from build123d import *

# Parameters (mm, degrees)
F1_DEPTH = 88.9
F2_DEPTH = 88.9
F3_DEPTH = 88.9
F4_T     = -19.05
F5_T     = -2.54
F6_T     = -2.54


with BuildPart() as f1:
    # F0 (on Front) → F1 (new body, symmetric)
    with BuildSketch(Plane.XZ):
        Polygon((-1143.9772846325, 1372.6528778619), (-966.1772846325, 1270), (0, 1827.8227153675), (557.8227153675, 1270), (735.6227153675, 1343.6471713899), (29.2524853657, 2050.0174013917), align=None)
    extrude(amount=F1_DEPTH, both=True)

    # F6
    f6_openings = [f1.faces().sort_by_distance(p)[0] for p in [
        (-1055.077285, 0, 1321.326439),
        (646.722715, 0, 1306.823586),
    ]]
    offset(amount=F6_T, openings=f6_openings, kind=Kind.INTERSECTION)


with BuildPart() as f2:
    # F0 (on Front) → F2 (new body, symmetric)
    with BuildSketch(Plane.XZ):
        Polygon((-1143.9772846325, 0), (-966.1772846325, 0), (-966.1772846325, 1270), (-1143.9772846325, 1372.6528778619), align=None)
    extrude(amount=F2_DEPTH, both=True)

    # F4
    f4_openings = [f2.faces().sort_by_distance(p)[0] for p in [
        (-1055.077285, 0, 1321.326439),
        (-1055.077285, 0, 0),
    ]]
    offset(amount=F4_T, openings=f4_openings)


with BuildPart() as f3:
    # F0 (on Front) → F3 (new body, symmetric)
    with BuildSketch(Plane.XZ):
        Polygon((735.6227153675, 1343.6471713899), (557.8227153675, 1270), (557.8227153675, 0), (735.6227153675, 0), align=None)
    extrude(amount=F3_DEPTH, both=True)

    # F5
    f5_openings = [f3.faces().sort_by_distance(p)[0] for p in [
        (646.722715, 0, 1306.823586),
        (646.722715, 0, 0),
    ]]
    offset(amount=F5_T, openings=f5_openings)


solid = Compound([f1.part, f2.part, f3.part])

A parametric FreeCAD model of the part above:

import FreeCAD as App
import Part
import Sketcher
from FreeCAD import Vector
Q = App.Units.Quantity


def faces_at(feature, points):
    """Names of the faces that lie closest to the given points."""
    faces = feature.Shape.Faces
    near = lambda p: min(range(len(faces)), key=lambda i: faces[i].distToShape(Part.Vertex(*p))[0])
    return sorted({f"Face{near(p) + 1}" for p in points})


def add_polygon(sketch, points):
    """Adds a closed chain of lines whose ends are joined by coincident constraints."""
    first, n = sketch.GeometryCount, len(points)
    for a, b in zip(points, points[1:] + points[:1]):
        sketch.addGeometry(Part.LineSegment(App.Vector(*a, 0), App.Vector(*b, 0)), False)
    for i in range(n):
        sketch.addConstraint(Sketcher.Constraint("Coincident", first + i, 2, first + (i + 1) % n, 1))

doc = App.newDocument("Part")
params = doc.addObject("Spreadsheet::Sheet", "Params")
for row, (alias, value) in enumerate([
    ("pad1_length", "7 in"),
    ("thickness_wall", "0.1 in"),
    ("sketch2_width", "7 in"),
    ("sketch2_height", "50 in"),
    ("pad2_length", "7 in"),
    ("thickness2_wall", "0.75 in"),
    ("sketch3_width", "7 in"),
    ("sketch3_height", "50 in"),
    ("pad3_length", "7 in"),
    ("thickness3_wall", "0.1 in"),
], start=1):
    params.set(f"A{row}", alias)
    params.set(f"B{row}", "=" + value)
    params.setAlias(f"B{row}", alias)

body = doc.addObject("PartDesign::Body", "Body")

# Sketch on XZ plane
sketch1 = body.newObject("Sketcher::SketchObject", "Sketch")
sketch1.AttachmentSupport = (doc.getObject("XZ_Plane"), [""])
sketch1.MapMode = "FlatFace"
add_polygon(sketch1, [(-1144, 1373), (-966, 1270), (0, 1828), (558, 1270), (736, 1344), (29, 2050)])  # lines 0-5
sketch1.addConstraint(Sketcher.Constraint("PointOnObject", 1, 2, -2))
sketch1.addConstraint(Sketcher.Constraint("Parallel", 2, 4))
sketch1.addConstraint(Sketcher.Constraint("Parallel", 1, 5))
sketch1.addConstraint(Sketcher.Constraint("Horizontal", 0, 2, 2, 2))
sketch1.addConstraint(Sketcher.Constraint("DistanceY", -1, 1, 0, 2, Q("50 in")))
sketch1.addConstraint(Sketcher.Constraint("Angle", 0, Q("-30 deg")))
sketch1.addConstraint(Sketcher.Constraint("Angle", 1, Q("30 deg")))
sketch1.addConstraint(Sketcher.Constraint("Angle", 2, Q("-45 deg")))
sketch1.addConstraint(Sketcher.Constraint("DistanceX", 0, 2, 2, 2, Q("60 in")))
sketch1.addConstraint(Sketcher.Constraint("DistanceX", 2, 2, 3, 2, Q("7 in")))
sketch1.addConstraint(Sketcher.Constraint("DistanceX", 5, 2, 0, 2, Q("7 in")))
sketch1.addConstraint(Sketcher.Constraint("Angle", 3, Q("22.5 deg")))
pad1 = body.newObject("PartDesign::Pad", "Pad")
pad1.Profile = sketch1
pad1.setExpression("Length", "Params.pad1_length")
pad1.Midplane = True
doc.recompute()

thickness = body.newObject("PartDesign::Thickness", "Thickness")
thickness.Base = (pad1, faces_at(pad1, [(-1055.077, 0, 1321.326), (646.723, 0, 1306.824)]))
thickness.setExpression("Value", "Params.thickness_wall")
thickness.Reversed = True
thickness.Join = "Intersection"
body2 = doc.addObject("PartDesign::Body", "Body001")

# Sketch on XZ plane
sketch2 = body2.newObject("Sketcher::SketchObject", "Sketch001")
sketch2.AttachmentSupport = (doc.getObject("XZ_Plane001"), [""])
sketch2.MapMode = "FlatFace"
add_polygon(sketch2, [(-1144, 0), (-966, 0), (-966, 1270), (-1144, 1373)])  # lines 0-3
sketch2.addConstraint(Sketcher.Constraint("Horizontal", 0))
sketch2.addConstraint(Sketcher.Constraint("Vertical", 1))
sketch2.addConstraint(Sketcher.Constraint("Vertical", 3))
sketch2.addConstraint(Sketcher.Constraint("PointOnObject", 0, 2, -1))
sketch2.addConstraint(Sketcher.Constraint("DistanceX", 0, 1, 0, 2, Q("7 in")))
sketch2.addConstraint(Sketcher.Constraint("DistanceY", 1, 1, 1, 2, Q("50 in")))
sketch2.addConstraint(Sketcher.Constraint("Angle", 2, Q("150 deg")))
sketch2.addConstraint(Sketcher.Constraint("DistanceX", 0, 2, -1, 1, 966.177285))
sketch2.setExpression("Constraints[8]", "Params.sketch2_width")
sketch2.setExpression("Constraints[9]", "Params.sketch2_height")
pad2 = body2.newObject("PartDesign::Pad", "Pad001")
pad2.Profile = sketch2
pad2.setExpression("Length", "Params.pad2_length")
pad2.Midplane = True
doc.recompute()

thickness2 = body2.newObject("PartDesign::Thickness", "Thickness001")
thickness2.Base = (pad2, faces_at(pad2, [(-1055.077, 0, 1321.326), (-1055.077, 0, 0)]))
thickness2.setExpression("Value", "Params.thickness2_wall")
thickness2.Reversed = True
thickness2.Join = "Arc"
body3 = doc.addObject("PartDesign::Body", "Body002")

# Sketch on XZ plane
sketch3 = body3.newObject("Sketcher::SketchObject", "Sketch002")
sketch3.AttachmentSupport = (doc.getObject("XZ_Plane002"), [""])
sketch3.MapMode = "FlatFace"
add_polygon(sketch3, [(736, 1344), (558, 1270), (558, 0), (736, 0)])  # lines 0-3
sketch3.addConstraint(Sketcher.Constraint("Vertical", 1))
sketch3.addConstraint(Sketcher.Constraint("Horizontal", 2))
sketch3.addConstraint(Sketcher.Constraint("Vertical", 3))
sketch3.addConstraint(Sketcher.Constraint("PointOnObject", 1, 2, -1))
sketch3.addConstraint(Sketcher.Constraint("DistanceX", 2, 1, 2, 2, Q("7 in")))
sketch3.addConstraint(Sketcher.Constraint("DistanceY", 1, 2, 1, 1, Q("50 in")))
sketch3.addConstraint(Sketcher.Constraint("Angle", 0, Q("-157.5 deg")))
sketch3.addConstraint(Sketcher.Constraint("DistanceX", -1, 1, 0, 2, 557.822715))
sketch3.setExpression("Constraints[8]", "Params.sketch3_width")
sketch3.setExpression("Constraints[9]", "Params.sketch3_height")
pad3 = body3.newObject("PartDesign::Pad", "Pad002")
pad3.Profile = sketch3
pad3.setExpression("Length", "Params.pad3_length")
pad3.Midplane = True
doc.recompute()

thickness3 = body3.newObject("PartDesign::Thickness", "Thickness002")
thickness3.Base = (pad3, faces_at(pad3, [(646.723, 0, 1306.824), (646.723, 0, 0)]))
thickness3.setExpression("Value", "Params.thickness3_wall")
thickness3.Reversed = True
thickness3.Join = "Arc"

doc.recompute()
